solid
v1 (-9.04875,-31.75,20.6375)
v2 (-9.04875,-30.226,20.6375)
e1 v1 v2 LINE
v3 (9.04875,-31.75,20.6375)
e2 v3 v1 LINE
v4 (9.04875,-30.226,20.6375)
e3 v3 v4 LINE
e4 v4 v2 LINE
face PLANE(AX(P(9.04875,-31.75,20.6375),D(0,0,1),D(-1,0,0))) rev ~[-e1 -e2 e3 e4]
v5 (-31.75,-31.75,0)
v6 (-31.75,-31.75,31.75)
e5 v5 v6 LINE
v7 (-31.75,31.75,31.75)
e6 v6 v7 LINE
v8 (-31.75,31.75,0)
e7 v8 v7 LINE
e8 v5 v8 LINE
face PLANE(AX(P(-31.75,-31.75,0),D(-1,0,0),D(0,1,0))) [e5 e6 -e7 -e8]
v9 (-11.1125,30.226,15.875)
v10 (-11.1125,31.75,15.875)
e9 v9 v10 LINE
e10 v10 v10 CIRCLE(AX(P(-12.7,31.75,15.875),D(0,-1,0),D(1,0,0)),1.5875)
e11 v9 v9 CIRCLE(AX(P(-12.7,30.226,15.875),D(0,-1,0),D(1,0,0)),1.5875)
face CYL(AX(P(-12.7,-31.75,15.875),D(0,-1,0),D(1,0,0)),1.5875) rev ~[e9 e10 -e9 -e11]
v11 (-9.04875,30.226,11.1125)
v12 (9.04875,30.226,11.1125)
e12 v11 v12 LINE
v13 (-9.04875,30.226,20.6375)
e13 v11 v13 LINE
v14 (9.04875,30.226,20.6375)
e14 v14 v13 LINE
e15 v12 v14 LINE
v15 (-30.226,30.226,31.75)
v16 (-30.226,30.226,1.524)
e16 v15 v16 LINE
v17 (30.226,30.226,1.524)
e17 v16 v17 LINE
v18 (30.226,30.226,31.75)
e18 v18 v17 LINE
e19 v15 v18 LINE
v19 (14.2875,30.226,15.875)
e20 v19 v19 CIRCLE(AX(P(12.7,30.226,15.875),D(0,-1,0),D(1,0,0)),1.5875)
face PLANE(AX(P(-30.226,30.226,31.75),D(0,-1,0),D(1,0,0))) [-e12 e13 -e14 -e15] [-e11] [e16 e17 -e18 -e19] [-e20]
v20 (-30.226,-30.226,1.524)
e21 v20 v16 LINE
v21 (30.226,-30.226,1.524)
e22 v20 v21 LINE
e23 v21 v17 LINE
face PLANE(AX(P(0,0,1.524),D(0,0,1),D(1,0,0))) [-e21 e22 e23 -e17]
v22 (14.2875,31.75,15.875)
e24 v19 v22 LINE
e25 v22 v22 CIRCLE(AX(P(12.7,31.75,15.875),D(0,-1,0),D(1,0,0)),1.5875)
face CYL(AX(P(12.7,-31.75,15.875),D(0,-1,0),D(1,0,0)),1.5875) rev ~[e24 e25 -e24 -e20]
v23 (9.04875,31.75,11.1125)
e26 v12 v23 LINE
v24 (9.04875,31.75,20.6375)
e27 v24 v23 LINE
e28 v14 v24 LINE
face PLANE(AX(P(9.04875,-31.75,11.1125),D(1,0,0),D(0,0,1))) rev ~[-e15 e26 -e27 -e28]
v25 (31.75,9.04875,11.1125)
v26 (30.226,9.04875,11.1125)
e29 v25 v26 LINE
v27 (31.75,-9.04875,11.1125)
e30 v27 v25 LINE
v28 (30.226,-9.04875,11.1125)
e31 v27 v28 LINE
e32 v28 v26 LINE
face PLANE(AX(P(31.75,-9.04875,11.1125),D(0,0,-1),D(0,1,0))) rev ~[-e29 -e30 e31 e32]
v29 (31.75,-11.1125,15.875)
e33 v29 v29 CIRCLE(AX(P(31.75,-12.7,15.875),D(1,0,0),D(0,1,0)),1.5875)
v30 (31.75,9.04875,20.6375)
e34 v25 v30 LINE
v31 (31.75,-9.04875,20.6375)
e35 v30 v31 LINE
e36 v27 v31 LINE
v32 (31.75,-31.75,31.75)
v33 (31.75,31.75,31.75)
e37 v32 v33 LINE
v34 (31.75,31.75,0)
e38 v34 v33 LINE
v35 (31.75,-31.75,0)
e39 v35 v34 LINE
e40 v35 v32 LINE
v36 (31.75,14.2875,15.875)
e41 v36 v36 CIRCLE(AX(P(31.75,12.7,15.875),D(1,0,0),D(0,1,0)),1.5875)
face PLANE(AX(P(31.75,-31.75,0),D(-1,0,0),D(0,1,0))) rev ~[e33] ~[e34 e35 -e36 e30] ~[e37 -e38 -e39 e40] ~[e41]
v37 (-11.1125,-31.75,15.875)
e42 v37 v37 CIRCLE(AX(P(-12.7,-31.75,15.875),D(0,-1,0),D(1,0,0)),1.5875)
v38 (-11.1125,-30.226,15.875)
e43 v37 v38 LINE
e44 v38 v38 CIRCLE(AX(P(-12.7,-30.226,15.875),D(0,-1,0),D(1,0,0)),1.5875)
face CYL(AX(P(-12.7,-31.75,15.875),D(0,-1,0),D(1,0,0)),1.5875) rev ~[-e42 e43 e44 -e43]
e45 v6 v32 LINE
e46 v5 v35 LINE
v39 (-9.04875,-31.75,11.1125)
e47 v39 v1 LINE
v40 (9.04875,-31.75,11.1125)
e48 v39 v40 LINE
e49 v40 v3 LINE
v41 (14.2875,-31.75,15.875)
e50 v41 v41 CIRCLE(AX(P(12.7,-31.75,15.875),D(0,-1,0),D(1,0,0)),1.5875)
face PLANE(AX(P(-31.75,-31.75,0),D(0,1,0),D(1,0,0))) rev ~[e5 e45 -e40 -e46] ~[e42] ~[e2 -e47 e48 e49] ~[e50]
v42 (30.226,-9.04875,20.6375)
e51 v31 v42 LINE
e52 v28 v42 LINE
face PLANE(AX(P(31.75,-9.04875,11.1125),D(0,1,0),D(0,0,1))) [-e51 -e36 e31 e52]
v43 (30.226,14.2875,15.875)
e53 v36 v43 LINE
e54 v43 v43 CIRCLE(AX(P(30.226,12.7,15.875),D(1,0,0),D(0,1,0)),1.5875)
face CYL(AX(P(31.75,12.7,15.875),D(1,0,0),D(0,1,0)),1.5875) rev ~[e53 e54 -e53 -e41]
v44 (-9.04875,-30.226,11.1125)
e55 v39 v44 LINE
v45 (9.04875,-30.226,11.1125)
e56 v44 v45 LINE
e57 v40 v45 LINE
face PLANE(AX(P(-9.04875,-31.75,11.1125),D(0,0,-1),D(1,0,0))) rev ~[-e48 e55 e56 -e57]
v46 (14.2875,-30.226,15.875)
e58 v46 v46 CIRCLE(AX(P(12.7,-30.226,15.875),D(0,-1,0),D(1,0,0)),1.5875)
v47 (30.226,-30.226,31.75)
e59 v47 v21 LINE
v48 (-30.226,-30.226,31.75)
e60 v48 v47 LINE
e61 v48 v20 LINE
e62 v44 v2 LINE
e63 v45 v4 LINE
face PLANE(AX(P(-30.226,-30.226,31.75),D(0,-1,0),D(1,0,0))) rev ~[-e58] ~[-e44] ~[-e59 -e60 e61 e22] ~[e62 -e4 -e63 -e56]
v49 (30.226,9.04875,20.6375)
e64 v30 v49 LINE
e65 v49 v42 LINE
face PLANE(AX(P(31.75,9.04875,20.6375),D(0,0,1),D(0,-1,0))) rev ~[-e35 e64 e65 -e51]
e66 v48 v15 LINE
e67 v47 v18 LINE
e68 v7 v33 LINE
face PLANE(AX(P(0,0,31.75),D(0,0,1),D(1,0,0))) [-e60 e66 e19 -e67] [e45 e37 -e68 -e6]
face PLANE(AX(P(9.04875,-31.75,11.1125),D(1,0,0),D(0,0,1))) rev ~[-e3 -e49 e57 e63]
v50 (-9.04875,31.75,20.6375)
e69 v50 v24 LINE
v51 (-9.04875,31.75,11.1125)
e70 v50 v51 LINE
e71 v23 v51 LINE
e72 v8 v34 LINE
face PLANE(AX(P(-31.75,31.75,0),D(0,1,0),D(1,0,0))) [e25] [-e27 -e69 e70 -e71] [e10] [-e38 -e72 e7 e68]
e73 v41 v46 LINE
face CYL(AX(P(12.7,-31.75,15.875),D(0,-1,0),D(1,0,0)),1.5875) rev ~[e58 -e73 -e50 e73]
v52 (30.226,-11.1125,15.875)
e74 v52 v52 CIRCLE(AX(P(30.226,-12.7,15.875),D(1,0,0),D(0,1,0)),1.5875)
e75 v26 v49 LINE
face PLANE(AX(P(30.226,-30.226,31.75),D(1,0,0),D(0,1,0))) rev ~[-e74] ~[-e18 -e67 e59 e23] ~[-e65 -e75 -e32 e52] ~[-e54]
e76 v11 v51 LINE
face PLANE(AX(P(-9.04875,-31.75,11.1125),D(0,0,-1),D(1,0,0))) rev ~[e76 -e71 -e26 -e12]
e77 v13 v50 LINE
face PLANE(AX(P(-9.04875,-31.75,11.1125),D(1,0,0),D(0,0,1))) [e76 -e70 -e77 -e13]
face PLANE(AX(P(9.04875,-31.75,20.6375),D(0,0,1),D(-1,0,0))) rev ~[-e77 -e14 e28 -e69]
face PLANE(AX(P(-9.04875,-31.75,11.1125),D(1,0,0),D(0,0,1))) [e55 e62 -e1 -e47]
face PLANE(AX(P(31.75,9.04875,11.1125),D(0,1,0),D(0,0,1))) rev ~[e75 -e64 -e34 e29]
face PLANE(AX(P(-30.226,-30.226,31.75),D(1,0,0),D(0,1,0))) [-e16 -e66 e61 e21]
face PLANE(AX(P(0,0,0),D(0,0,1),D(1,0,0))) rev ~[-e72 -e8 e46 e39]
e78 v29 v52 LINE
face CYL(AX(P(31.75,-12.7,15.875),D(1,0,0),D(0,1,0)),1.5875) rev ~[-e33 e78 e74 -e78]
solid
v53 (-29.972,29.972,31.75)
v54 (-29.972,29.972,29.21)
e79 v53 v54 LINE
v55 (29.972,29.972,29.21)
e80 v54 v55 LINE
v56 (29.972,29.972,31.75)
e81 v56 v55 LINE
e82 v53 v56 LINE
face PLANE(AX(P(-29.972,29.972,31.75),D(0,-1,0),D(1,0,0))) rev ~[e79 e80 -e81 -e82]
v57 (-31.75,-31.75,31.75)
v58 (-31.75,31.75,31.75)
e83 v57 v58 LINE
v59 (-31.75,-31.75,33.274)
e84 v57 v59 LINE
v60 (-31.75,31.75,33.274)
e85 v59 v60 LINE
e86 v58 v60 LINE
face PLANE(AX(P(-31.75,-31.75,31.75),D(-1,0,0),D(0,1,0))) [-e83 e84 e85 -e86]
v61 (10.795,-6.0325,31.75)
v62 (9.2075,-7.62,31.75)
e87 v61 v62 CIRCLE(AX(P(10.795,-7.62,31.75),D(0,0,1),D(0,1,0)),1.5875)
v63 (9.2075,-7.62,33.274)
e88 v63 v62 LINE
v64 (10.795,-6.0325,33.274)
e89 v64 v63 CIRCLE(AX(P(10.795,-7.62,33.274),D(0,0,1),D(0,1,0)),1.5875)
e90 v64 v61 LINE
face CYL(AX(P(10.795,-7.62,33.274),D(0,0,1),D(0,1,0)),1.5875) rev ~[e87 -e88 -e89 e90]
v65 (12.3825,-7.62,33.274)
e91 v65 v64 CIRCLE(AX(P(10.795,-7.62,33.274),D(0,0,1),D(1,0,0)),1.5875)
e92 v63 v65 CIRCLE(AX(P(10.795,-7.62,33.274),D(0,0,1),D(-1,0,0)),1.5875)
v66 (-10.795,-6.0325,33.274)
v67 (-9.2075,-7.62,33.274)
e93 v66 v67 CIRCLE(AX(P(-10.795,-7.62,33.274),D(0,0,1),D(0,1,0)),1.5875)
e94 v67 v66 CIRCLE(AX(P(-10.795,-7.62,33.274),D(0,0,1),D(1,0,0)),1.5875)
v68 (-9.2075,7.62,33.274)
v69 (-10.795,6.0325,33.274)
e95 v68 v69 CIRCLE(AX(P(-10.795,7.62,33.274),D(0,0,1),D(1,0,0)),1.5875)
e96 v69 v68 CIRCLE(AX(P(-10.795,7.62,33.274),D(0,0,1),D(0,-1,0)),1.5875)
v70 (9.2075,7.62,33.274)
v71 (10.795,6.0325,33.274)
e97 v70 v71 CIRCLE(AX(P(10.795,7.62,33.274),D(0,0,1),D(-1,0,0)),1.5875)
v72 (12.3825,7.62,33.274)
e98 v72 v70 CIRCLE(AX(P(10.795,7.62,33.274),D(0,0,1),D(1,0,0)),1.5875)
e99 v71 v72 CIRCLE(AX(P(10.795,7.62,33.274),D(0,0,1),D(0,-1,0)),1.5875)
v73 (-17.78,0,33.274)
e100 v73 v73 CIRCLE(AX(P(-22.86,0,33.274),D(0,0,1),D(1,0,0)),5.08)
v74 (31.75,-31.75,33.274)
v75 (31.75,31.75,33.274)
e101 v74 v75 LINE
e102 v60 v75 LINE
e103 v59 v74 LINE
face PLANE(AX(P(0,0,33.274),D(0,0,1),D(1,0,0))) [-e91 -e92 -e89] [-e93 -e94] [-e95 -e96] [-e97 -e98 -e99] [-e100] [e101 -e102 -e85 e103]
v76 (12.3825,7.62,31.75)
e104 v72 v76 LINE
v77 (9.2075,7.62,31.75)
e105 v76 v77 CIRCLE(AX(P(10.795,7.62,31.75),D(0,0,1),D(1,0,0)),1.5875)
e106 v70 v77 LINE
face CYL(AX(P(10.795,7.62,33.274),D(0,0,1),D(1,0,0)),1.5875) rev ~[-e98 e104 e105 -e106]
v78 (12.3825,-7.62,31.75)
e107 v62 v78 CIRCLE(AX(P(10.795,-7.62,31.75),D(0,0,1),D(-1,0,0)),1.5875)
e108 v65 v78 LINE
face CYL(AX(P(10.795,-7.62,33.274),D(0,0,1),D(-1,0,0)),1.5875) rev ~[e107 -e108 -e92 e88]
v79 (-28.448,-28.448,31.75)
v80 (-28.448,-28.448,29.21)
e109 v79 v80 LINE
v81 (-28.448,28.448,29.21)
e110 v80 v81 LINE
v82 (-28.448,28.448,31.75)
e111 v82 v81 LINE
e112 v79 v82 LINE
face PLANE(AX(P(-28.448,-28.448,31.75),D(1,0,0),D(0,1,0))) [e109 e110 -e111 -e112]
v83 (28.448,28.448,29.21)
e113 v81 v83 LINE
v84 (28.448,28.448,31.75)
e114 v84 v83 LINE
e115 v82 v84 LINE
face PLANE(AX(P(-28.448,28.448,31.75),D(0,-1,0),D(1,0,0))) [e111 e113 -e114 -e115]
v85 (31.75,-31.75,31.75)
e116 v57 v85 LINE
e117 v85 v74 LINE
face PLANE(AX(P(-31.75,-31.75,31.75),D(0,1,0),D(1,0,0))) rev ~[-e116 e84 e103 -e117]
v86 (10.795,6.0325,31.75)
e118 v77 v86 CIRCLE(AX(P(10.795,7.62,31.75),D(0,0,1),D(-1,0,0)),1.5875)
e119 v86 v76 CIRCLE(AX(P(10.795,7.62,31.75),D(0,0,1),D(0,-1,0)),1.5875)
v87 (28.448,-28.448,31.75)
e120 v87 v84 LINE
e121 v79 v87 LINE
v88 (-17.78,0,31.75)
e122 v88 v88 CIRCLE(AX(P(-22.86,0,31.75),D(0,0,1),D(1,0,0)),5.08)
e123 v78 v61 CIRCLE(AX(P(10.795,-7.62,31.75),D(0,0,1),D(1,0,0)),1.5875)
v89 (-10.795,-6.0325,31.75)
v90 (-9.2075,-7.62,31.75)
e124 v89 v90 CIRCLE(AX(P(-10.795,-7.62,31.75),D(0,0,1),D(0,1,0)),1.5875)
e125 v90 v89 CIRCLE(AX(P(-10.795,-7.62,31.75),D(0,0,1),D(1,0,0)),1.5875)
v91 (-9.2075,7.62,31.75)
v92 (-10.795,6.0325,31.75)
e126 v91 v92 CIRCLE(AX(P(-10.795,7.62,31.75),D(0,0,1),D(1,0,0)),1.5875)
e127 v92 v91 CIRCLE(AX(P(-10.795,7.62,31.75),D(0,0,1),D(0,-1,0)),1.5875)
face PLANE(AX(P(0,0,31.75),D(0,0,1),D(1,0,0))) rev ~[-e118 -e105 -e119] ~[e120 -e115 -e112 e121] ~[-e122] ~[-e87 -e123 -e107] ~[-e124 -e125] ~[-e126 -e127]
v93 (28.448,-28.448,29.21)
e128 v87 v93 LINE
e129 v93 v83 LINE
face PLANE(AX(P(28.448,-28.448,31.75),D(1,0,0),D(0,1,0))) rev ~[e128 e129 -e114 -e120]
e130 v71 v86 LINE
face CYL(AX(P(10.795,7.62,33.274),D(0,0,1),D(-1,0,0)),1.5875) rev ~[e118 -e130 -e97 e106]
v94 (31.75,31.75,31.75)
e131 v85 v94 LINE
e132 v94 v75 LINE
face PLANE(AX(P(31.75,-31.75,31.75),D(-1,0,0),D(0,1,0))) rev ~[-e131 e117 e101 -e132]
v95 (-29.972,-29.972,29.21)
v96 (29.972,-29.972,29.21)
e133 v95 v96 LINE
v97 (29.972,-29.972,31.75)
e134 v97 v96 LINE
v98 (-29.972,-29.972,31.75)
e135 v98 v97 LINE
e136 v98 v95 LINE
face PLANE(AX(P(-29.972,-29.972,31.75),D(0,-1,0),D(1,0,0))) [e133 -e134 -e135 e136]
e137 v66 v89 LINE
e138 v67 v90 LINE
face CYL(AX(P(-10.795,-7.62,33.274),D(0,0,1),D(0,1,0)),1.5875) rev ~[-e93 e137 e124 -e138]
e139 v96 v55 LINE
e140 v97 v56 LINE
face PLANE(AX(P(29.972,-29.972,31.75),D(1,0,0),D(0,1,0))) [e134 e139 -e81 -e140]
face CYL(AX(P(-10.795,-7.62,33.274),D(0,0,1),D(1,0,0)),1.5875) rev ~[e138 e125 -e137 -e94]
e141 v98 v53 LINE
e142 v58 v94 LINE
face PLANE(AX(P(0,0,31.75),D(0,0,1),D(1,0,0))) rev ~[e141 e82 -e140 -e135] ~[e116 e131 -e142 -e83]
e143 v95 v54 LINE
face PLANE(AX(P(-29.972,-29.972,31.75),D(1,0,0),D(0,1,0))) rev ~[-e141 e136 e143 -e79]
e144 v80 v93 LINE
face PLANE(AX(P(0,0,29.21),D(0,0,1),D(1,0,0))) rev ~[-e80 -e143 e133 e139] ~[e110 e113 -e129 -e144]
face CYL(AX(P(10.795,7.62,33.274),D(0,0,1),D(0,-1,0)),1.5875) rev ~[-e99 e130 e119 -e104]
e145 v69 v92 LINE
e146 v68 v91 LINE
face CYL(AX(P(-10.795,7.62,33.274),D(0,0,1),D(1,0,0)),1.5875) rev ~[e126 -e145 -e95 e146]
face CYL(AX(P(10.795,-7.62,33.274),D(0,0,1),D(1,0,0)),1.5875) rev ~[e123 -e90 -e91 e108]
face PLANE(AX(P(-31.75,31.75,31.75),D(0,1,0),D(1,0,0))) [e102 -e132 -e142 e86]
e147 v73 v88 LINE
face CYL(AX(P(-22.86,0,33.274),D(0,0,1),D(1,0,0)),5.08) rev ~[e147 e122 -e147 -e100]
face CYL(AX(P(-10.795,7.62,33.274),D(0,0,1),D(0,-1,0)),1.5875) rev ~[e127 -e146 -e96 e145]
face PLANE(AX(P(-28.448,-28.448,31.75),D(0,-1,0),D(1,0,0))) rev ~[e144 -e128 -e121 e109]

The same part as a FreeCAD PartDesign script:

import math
import FreeCAD as App
import Part
import Sketcher
from FreeCAD import Vector
Q = App.Units.Quantity


def add_polygon(sketch, points):
    """Adds a closed chain of lines whose ends are joined by coincident constraints."""
    first, n = sketch.GeometryCount, len(points)
    for a, b in zip(points, points[1:] + points[:1]):
        sketch.addGeometry(Part.LineSegment(App.Vector(*a, 0), App.Vector(*b, 0)), False)
    for i in range(n):
        sketch.addConstraint(Sketcher.Constraint("Coincident", first + i, 2, first + (i + 1) % n, 1))

doc = App.newDocument("Part")
body = doc.addObject("PartDesign::Body", "Body")

sketch1 = body.newObject("Sketcher::SketchObject", "Sketch")
sketch1.AttachmentSupport = (doc.getObject("XY_Plane"), [""])
sketch1.MapMode = "FlatFace"
add_polygon(sketch1, [(-32, 32), (-32, -32), (32, -32), (32, 32)])
sketch1.addConstraint([
    Sketcher.Constraint("Vertical", 0),
    Sketcher.Constraint("Horizontal", 1),
    Sketcher.Constraint("Vertical", 2),
    Sketcher.Constraint("Horizontal", 3),
    Sketcher.Constraint("Symmetric", 0, 2, 2, 2, -1, 1),
    Sketcher.Constraint("Equal", 3, 0),
    Sketcher.Constraint("DistanceX", 1, 1, 1, 2, Q("2.5 in")),
])
pad1 = body.newObject("PartDesign::Pad", "Pad")
pad1.Profile = sketch1
pad1.Length = Q("1.25 in")

sketch2 = body.newObject("Sketcher::SketchObject", "Sketch001")
sketch2.AttachmentSupport = (doc.getObject("XY_Plane"), [""])
sketch2.MapMode = "FlatFace"
sketch2.AttachmentOffset = App.Placement(Vector(0, 0, 1.25 * 25.4), App.Rotation())
add_polygon(sketch2, [(-30, 30), (-30, -30), (30, -30), (30, 30)])
sketch2.addConstraint([
    Sketcher.Constraint("Vertical", 0),
    Sketcher.Constraint("Horizontal", 1),
    Sketcher.Constraint("Vertical", 2),
    Sketcher.Constraint("Horizontal", 3),
    Sketcher.Constraint("Symmetric", 0, 2, 2, 2, -1, 1),
    Sketcher.Constraint("Equal", 3, 0),
    Sketcher.Constraint("DistanceX", 1, 1, 1, 2, Q("2.38 in")),
])
pocket1 = body.newObject("PartDesign::Pocket", "Pocket")
pocket1.Profile = sketch2
pocket1.Length = Q("1.19 in")

sketch3 = body.newObject("Sketcher::SketchObject", "Sketch002")
sketch3.AttachmentSupport = (doc.getObject("XZ_Plane"), [""])
sketch3.MapMode = "FlatFace"
sketch3.AttachmentOffset = App.Placement(Vector(0, 0, 1.25 * 25.4), App.Rotation())
add_polygon(sketch3, [(-9, 20.6), (-9, 11.1), (9, 11.1), (9, 20.6)])
sketch3.addGeometry(Part.Circle(Vector(-12.7, 15.9, 0), Vector(0, 0, 1), 1.6), False)
sketch3.addGeometry(Part.Circle(Vector(12.7, 15.9, 0), Vector(0, 0, 1), 1.6), False)
sketch3.addConstraint([
    Sketcher.Constraint("Vertical", 0),
    Sketcher.Constraint("Horizontal", 1),
    Sketcher.Constraint("Vertical", 2),
    Sketcher.Constraint("Horizontal", 3),
    Sketcher.Constraint("Equal", 4, 5),
    Sketcher.Constraint("Symmetric", 4, 3, 5, 3, -2),
    Sketcher.Constraint("Diameter", 4, Q("0.125 in")),
    Sketcher.Constraint("DistanceX", 4, 3, 5, 3, Q("1 in")),
    Sketcher.Constraint("DistanceY", 0, 2, 0, 1, Q("0.375 in")),
    Sketcher.Constraint("DistanceX", 1, 1, 1, 2, Q("0.7125 in")),
    Sketcher.Constraint("DistanceY", -1, 1, 4, 3, Q("0.625 in")),
    Sketcher.Constraint("DistanceY", -1, 1, 0, 2, Q("0.4375 in")),
    Sketcher.Constraint("DistanceX", 0, 2, -1, 1, 9.04875),
])
pocket2 = body.newObject("PartDesign::Pocket", "Pocket001")
pocket2.Profile = sketch3
pocket2.Length = Q("3 in")

sketch4 = body.newObject("Sketcher::SketchObject", "Sketch003")
sketch4.AttachmentSupport = (doc.getObject("YZ_Plane"), [""])
sketch4.MapMode = "FlatFace"
sketch4.AttachmentOffset = App.Placement(Vector(0, 0, 1.25 * 25.4), App.Rotation())
add_polygon(sketch4, [(-9, 20.6), (-9, 11.1), (9, 11.1), (9, 20.6)])
sketch4.addGeometry(Part.Circle(Vector(-12.7, 15.9, 0), Vector(0, 0, 1), 1.6), False)
sketch4.addGeometry(Part.Circle(Vector(12.7, 15.9, 0), Vector(0, 0, 1), 1.6), False)
sketch4.addConstraint([
    Sketcher.Constraint("Vertical", 0),
    Sketcher.Constraint("Horizontal", 1),
    Sketcher.Constraint("Vertical", 2),
    Sketcher.Constraint("Horizontal", 3),
    Sketcher.Constraint("Equal", 4, 5),
    Sketcher.Constraint("Symmetric", 4, 3, 5, 3, -2),
    Sketcher.Constraint("Diameter", 4, Q("0.125 in")),
    Sketcher.Constraint("DistanceX", 4, 3, 5, 3, Q("1 in")),
    Sketcher.Constraint("DistanceY", 0, 2, 0, 1, Q("0.375 in")),
    Sketcher.Constraint("DistanceX", 1, 1, 1, 2, Q("0.7125 in")),
    Sketcher.Constraint("DistanceY", -1, 1, 4, 3, Q("0.625 in")),
    Sketcher.Constraint("DistanceY", -1, 1, 0, 2, Q("0.4375 in")),
    Sketcher.Constraint("DistanceX", 0, 2, -1, 1, 9.04875),
])
pocket3 = body.newObject("PartDesign::Pocket", "Pocket002")
pocket3.Profile = sketch4
pocket3.Length = Q("1 in")
body2 = doc.addObject("PartDesign::Body", "Body001")

sketch5 = body2.newObject("Sketcher::SketchObject", "Sketch004")
sketch5.AttachmentSupport = (doc.getObject("XY_Plane001"), [""])
sketch5.MapMode = "FlatFace"
sketch5.AttachmentOffset = App.Placement(Vector(0, 0, 1.25 * 25.4), App.Rotation())
add_polygon(sketch5, [(-30, 30), (-30, -30), (30, -30), (30, 30)])
add_polygon(sketch5, [(28, -28), (-28, -28), (-28, 28), (28, 28)])
sketch5.addConstraint([
    Sketcher.Constraint("Vertical", 0),
    Sketcher.Constraint("Horizontal", 1),
    Sketcher.Constraint("Vertical", 2),
    Sketcher.Constraint("Horizontal", 3),
    Sketcher.Constraint("Horizontal", 4),
    Sketcher.Constraint("Vertical", 5),
    Sketcher.Constraint("Horizontal", 6),
    Sketcher.Constraint("Vertical", 7),
    Sketcher.Constraint("Symmetric", 0, 2, 2, 2, -1, 1),
    Sketcher.Constraint("Symmetric", 4, 2, 6, 2, -1, 1),
    Sketcher.Constraint("Equal", 3, 0),
    Sketcher.Constraint("Equal", 6, 5),
    Sketcher.Constraint("DistanceX", 1, 1, 1, 2, Q("2.36 in")),
    Sketcher.Constraint("DistanceX", 4, 2, 4, 1, Q("2.24 in")),
])
pad2 = body2.newObject("PartDesign::Pad", "Pad001")
pad2.Profile = sketch5
pad2.Length = Q("0.1 in")
pad2.Reversed = True

sketch6 = body2.newObject("Sketcher::SketchObject", "Sketch005")
sketch6.AttachmentSupport = (doc.getObject("XY_Plane001"), [""])
sketch6.MapMode = "FlatFace"
sketch6.AttachmentOffset = App.Placement(Vector(0, 0, 1.25 * 25.4), App.Rotation())
add_polygon(sketch6, [(-32, 32), (-32, -32), (32, -32), (32, 32)])
sketch6.addConstraint([
    Sketcher.Constraint("Vertical", 0),
    Sketcher.Constraint("Horizontal", 1),
    Sketcher.Constraint("Vertical", 2),
    Sketcher.Constraint("Horizontal", 3),
    Sketcher.Constraint("Symmetric", 0, 2, 2, 2, -1, 1),
    Sketcher.Constraint("Equal", 3, 0),
    Sketcher.Constraint("DistanceX", 1, 1, 1, 2, Q("2.5 in")),
])
pad3 = body2.newObject("PartDesign::Pad", "Pad002")
pad3.Profile = sketch6
pad3.Length = Q("0.06 in")

sketch7 = body2.newObject("Sketcher::SketchObject", "Sketch006")
sketch7.AttachmentSupport = (doc.getObject("XY_Plane001"), [""])
sketch7.MapMode = "FlatFace"
sketch7.AttachmentOffset = App.Placement(Vector(0, 0, 1.31 * 25.4), App.Rotation())
sketch7.addGeometry([
    Part.ArcOfCircle(Part.Circle(Vector(10.8, 7.6, 0), Vector(0, 0, 1), 1.6), math.radians(180), math.radians(270)),
    Part.ArcOfCircle(Part.Circle(Vector(10.8, 7.6, 0), Vector(0, 0, 1), 1.6), math.radians(-90), math.radians(0)),
    Part.ArcOfCircle(Part.Circle(Vector(10.8, 7.6, 0), Vector(0, 0, 1), 1.6), math.radians(0), math.radians(180)),
    Part.ArcOfCircle(Part.Circle(Vector(-10.8, 7.6, 0), Vector(0, 0, 1), 1.6), math.radians(0), math.radians(270)),
    Part.ArcOfCircle(Part.Circle(Vector(-10.8, 7.6, 0), Vector(0, 0, 1), 1.6), math.radians(-90), math.radians(0)),
    Part.ArcOfCircle(Part.Circle(Vector(10.8, -7.6, 0), Vector(0, 0, 1), 1.6), math.radians(90), math.radians(180)),
    Part.ArcOfCircle(Part.Circle(Vector(10.8, -7.6, 0), Vector(0, 0, 1), 1.6), math.radians(180), math.radians(360)),
    Part.ArcOfCircle(Part.Circle(Vector(10.8, -7.6, 0), Vector(0, 0, 1), 1.6), math.radians(0), math.radians(90)),
    Part.ArcOfCircle(Part.Circle(Vector(-10.8, -7.6, 0), Vector(0, 0, 1), 1.6), math.radians(0), math.radians(90)),
    Part.ArcOfCircle(Part.Circle(Vector(-10.8, -7.6, 0), Vector(0, 0, 1), 1.6), math.radians(90), math.radians(360)),
    Part.Circle(Vector(-22.9, 0, 0), Vector(0, 0, 1), 5.1),
], False)
sketch7.addConstraint([
    Sketcher.Constraint("Tangent", 0, 2, 1, 1),
    Sketcher.Constraint("Tangent", 1, 2, 2, 1),
    Sketcher.Constraint("Tangent", 2, 2, 0, 1),
    Sketcher.Constraint("Tangent", 3, 1, 4, 2),
    Sketcher.Constraint("Coincident", 4, 1, 3, 2),
    Sketcher.Constraint("Tangent", 5, 2, 6, 1),
    Sketcher.Constraint("Tangent", 6, 2, 7, 1),
    Sketcher.Constraint("Tangent", 7, 2, 5, 1),
    Sketcher.Constraint("Tangent", 8, 1, 9, 2),
    Sketcher.Constraint("Coincident", 9, 1, 8, 2),
    Sketcher.Constraint("Equal", 2, 3),
    Sketcher.Constraint("Equal", 4, 5),
    Sketcher.Constraint("Equal", 7, 8),
    Sketcher.Constraint("Symmetric", 3, 3, 5, 3, -1, 1),
    Sketcher.Constraint("Symmetric", 0, 3, 8, 3, -1, 1),
    Sketcher.Constraint("Symmetric", 0, 3, 3, 3, -2),
    Sketcher.Constraint("PointOnObject", 10, 3, -1),
    Sketcher.Constraint("Horizontal", 4, 3, 1, 2),
    Sketcher.Constraint("Horizontal", 1, 2, 2, 2),
    Sketcher.Constraint("Horizontal", 2, 2, 3, 1),
    Sketcher.Constraint("Horizontal", 9, 3, 5, 2),
    Sketcher.Constraint("Horizontal", 5, 2, 6, 2),
    Sketcher.Constraint("Horizontal", 6, 2, 8, 1),
    Sketcher.Constraint("Vertical", 7, 3, 0, 2),
    Sketcher.Constraint("Vertical", 9, 3, 4, 1),
    Sketcher.Constraint("Vertical", 0, 2, 7, 2),
    Sketcher.Constraint("Vertical", 4, 1, 9, 1),
    Sketcher.Constraint("Diameter", 10, Q("0.4 in")),
    Sketcher.Constraint("Radius", 0, Q("0.0625 in")),
    Sketcher.Constraint("DistanceY", -1, 1, 0, 3, Q("0.3 in")),
    Sketcher.Constraint("DistanceX", 10, 3, -1, 1, Q("0.9 in")),
    Sketcher.Constraint("DistanceX", 3, 3, 0, 3, Q("0.85 in")),
])
pocket4 = body2.newObject("PartDesign::Pocket", "Pocket003")
pocket4.Profile = sketch7
pocket4.Length = Q("1 in")

doc.recompute()
